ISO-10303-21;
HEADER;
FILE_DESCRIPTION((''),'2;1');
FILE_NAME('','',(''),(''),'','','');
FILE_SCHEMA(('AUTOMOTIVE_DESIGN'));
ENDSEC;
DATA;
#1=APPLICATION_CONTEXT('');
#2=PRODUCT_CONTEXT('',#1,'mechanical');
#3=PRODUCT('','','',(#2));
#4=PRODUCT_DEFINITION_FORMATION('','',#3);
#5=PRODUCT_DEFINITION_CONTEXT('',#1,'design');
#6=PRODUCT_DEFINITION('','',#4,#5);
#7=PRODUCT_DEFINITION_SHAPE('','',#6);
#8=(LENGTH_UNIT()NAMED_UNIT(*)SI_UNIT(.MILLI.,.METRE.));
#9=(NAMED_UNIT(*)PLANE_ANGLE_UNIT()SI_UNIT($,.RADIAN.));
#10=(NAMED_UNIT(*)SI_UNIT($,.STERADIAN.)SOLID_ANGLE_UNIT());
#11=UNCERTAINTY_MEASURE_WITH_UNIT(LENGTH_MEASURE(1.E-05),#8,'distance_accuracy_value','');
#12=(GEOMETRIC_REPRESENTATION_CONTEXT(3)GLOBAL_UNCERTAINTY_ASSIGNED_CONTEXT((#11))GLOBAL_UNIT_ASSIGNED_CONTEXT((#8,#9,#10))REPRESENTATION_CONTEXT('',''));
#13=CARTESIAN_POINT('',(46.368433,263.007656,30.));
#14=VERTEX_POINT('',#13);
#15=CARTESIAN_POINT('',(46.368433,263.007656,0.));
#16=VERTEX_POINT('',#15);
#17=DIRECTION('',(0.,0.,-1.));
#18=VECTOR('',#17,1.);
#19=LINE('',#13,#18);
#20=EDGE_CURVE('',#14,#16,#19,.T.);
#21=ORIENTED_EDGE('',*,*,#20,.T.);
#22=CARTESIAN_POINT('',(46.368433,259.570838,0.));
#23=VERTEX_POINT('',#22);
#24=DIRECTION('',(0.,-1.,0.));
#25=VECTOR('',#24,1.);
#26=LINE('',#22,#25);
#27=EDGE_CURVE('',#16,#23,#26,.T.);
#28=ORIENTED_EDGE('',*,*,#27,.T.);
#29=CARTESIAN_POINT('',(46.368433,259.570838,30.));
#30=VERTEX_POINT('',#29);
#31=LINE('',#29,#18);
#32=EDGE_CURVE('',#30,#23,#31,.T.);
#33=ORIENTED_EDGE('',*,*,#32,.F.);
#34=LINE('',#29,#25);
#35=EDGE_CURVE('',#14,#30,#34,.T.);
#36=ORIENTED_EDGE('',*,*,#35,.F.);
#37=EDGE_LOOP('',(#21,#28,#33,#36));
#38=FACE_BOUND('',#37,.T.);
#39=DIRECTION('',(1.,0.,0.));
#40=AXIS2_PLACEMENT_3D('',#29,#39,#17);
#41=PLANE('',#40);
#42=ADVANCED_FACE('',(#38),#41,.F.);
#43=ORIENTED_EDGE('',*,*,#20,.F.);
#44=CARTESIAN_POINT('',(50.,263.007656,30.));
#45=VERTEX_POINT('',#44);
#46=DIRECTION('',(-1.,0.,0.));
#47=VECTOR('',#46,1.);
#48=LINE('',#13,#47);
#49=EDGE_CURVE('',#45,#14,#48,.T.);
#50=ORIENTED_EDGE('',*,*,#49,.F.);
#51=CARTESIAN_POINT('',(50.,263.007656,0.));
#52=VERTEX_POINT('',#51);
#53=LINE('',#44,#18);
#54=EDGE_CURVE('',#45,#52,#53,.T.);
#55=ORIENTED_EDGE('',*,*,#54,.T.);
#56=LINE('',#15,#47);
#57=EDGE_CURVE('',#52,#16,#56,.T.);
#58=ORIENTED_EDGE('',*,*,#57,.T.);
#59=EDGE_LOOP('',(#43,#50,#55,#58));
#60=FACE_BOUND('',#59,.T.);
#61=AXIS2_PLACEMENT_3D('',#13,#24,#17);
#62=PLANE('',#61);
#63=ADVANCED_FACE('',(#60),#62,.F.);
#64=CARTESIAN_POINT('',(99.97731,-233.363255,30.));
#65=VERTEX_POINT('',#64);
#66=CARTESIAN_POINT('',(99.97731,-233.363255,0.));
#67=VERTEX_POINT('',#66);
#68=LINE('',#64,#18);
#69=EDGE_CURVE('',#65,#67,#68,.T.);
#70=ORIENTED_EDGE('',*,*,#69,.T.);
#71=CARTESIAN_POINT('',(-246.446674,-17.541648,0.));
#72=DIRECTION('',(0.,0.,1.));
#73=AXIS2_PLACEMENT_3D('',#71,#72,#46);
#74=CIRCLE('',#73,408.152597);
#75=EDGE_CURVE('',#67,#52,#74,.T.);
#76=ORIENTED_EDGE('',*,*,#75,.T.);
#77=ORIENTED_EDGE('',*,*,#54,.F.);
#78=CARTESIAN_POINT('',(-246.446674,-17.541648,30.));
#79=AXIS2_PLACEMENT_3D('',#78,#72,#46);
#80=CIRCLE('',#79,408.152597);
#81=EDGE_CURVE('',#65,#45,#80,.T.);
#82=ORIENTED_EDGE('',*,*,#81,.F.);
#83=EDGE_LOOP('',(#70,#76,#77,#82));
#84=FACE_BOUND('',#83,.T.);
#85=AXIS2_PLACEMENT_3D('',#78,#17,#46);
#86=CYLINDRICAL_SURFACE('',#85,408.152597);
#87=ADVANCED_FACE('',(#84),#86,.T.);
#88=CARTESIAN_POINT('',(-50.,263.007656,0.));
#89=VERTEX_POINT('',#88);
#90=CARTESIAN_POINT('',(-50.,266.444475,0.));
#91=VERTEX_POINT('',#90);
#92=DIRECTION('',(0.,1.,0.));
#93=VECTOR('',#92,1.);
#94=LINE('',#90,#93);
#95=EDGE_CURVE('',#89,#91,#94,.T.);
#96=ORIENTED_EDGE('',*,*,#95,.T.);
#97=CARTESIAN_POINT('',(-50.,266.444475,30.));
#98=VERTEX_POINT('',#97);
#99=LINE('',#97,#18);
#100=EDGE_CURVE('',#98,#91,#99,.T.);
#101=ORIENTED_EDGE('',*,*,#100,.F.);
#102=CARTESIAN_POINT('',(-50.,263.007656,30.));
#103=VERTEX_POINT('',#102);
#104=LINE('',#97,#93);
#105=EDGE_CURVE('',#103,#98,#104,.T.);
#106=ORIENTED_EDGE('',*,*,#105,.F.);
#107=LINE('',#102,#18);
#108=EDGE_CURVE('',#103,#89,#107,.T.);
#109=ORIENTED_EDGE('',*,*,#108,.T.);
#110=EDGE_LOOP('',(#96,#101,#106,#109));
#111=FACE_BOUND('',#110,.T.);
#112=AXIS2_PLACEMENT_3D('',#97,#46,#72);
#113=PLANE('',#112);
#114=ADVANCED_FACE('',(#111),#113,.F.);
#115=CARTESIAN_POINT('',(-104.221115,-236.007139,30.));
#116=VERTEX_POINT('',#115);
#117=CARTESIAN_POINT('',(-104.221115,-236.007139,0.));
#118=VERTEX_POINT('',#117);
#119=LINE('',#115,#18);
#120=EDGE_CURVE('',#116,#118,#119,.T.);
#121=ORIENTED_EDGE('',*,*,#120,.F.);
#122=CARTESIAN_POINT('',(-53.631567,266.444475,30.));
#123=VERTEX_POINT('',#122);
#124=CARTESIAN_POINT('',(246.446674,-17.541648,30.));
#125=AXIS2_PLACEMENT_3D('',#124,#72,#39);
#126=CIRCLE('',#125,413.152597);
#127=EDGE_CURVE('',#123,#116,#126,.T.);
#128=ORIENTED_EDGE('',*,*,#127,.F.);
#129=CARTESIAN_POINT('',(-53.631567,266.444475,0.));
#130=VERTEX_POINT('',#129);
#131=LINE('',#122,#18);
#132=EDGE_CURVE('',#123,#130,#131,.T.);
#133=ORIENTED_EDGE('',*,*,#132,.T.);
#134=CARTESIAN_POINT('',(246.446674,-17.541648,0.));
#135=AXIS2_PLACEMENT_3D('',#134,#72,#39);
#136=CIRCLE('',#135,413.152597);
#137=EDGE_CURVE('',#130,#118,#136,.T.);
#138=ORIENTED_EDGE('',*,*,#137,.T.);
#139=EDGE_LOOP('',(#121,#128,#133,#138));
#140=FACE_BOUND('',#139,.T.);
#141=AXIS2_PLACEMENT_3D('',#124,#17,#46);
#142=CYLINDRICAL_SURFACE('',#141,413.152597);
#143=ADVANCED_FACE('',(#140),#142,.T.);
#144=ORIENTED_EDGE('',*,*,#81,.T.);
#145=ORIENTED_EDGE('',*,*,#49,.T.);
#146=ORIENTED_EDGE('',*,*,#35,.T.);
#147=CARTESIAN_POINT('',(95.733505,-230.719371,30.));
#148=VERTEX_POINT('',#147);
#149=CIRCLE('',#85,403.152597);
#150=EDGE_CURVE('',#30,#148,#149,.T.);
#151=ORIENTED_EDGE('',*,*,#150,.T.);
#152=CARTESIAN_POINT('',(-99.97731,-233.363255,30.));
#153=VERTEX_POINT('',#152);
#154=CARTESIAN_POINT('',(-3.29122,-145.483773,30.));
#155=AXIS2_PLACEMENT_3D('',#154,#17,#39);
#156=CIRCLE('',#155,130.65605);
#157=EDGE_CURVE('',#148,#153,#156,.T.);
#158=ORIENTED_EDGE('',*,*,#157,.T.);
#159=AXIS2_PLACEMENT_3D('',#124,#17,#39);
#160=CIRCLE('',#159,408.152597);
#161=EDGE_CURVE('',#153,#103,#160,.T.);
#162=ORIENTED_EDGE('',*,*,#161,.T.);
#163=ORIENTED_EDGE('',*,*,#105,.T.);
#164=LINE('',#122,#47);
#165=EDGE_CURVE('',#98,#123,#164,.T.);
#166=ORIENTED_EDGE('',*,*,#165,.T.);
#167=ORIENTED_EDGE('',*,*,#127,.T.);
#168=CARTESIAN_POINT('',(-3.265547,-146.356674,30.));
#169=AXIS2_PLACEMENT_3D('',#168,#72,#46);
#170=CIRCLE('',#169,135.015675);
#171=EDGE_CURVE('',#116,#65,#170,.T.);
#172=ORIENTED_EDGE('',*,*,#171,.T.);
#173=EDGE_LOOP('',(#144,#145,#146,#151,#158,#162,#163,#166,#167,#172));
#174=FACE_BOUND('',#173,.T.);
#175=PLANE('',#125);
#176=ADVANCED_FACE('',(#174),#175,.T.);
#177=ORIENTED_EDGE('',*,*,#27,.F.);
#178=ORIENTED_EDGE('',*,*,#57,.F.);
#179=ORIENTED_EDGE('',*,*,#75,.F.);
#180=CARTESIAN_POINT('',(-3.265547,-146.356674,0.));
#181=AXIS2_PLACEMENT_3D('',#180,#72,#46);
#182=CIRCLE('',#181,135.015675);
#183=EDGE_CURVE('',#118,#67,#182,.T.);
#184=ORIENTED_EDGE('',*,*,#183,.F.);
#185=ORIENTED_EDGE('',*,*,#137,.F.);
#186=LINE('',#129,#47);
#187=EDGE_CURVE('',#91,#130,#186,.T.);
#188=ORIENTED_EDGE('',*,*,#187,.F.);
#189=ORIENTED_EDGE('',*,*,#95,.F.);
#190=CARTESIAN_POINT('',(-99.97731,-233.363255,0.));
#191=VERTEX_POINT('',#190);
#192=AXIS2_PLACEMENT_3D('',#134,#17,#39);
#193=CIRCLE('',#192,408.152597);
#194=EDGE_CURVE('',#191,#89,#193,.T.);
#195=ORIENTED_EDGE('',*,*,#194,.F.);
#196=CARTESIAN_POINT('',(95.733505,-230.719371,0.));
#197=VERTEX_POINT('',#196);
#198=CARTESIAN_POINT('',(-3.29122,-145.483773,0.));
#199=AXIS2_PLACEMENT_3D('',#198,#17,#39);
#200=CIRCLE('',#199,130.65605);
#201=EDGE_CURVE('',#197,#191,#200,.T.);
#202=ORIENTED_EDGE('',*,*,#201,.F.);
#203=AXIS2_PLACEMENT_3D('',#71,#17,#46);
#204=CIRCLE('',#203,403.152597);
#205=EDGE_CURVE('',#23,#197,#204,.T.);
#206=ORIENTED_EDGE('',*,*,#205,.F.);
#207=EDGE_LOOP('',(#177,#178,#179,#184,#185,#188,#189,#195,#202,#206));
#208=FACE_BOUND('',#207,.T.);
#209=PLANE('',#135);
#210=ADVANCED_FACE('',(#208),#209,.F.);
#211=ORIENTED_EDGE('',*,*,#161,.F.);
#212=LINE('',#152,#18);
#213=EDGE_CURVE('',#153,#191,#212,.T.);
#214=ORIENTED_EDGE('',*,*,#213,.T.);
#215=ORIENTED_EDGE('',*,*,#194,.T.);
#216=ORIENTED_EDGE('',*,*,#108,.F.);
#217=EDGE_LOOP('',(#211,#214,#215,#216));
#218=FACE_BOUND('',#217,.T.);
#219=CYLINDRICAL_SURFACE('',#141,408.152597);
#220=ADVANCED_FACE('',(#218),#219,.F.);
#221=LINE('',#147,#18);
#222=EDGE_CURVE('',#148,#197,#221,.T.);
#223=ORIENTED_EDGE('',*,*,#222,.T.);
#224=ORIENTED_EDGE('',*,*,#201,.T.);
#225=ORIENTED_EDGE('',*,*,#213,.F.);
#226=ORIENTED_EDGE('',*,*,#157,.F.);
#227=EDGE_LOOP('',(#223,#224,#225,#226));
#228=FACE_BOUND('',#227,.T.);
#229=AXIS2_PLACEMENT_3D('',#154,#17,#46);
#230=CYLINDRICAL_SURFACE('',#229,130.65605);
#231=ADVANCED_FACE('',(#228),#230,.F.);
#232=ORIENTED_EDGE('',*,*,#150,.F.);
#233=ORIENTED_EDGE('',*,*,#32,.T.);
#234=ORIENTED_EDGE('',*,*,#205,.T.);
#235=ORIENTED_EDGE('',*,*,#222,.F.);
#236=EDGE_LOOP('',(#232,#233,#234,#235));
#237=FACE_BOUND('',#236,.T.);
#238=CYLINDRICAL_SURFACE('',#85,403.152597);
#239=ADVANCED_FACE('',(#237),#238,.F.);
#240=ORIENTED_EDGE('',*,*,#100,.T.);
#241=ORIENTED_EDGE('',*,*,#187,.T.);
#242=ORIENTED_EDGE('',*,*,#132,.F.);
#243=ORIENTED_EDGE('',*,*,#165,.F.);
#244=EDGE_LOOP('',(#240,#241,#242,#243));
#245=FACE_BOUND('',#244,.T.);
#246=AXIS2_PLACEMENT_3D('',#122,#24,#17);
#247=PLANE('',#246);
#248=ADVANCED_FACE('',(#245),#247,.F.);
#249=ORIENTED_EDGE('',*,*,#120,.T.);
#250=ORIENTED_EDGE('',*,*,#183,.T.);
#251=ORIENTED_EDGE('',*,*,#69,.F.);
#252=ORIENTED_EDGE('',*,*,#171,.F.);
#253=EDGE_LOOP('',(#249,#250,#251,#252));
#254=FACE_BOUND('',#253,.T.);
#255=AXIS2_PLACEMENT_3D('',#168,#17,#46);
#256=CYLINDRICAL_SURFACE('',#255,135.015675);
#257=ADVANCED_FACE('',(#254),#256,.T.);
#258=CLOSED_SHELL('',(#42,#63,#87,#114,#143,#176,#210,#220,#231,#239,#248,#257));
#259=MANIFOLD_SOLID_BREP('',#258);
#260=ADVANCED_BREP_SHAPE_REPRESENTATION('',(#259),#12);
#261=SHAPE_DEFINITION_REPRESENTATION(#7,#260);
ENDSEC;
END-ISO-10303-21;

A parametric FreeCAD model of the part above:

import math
import FreeCAD as App
import Part
import Sketcher
Q = App.Units.Quantity

doc = App.newDocument("Part")
params = doc.addObject("Spreadsheet::Sheet", "Params")
for row, (alias, value) in enumerate([
    ("pad1_length", "30 mm"),
], start=1):
    params.set(f"A{row}", alias)
    params.set(f"B{row}", "=" + value)
    params.setAlias(f"B{row}", alias)

body = doc.addObject("PartDesign::Body", "Body")

sketch1 = body.newObject("Sketcher::SketchObject", "Sketch")
sketch1.AttachmentSupport = (doc.getObject("XY_Plane"), [""])
sketch1.MapMode = "FlatFace"
sketch1.addGeometry([
    Part.LineSegment(App.Vector(46.4, 263, 0), App.Vector(46.4, 259.6, 0)),
    Part.ArcOfCircle(Part.Circle(App.Vector(-246.4, -17.5, 0), App.Vector(0, 0, 1), 403.2), math.radians(-32), math.radians(43)),
    Part.ArcOfCircle(Part.Circle(App.Vector(-3.3, -145.5, 0), App.Vector(0, 0, 1), 130.7), math.radians(-138), math.radians(-41)),
    Part.ArcOfCircle(Part.Circle(App.Vector(246.4, -17.5, 0), App.Vector(0, 0, 1), 408.2), math.radians(137), math.radians(212)),
    Part.LineSegment(App.Vector(-50, 263, 0), App.Vector(-50, 266.4, 0)),
    Part.LineSegment(App.Vector(-50, 266.4, 0), App.Vector(-53.6, 266.4, 0)),
    Part.ArcOfCircle(Part.Circle(App.Vector(246.4, -17.5, 0), App.Vector(0, 0, 1), 413.2), math.radians(137), math.radians(212)),
    Part.ArcOfCircle(Part.Circle(App.Vector(-3.3, -146.4, 0), App.Vector(0, 0, 1), 135), math.radians(-138), math.radians(-40)),
    Part.ArcOfCircle(Part.Circle(App.Vector(-246.4, -17.5, 0), App.Vector(0, 0, 1), 408.2), math.radians(-32), math.radians(43)),
    Part.LineSegment(App.Vector(50, 263, 0), App.Vector(46.4, 263, 0)),
], False)
sketch1.addConstraint([
    Sketcher.Constraint("Coincident", 0, 2, 1, 2),
    Sketcher.Constraint("Coincident", 1, 1, 2, 2),
    Sketcher.Constraint("Coincident", 2, 1, 3, 2),
    Sketcher.Constraint("Coincident", 3, 1, 4, 1),
    Sketcher.Constraint("Coincident", 4, 2, 5, 1),
    Sketcher.Constraint("Coincident", 5, 2, 6, 1),
    Sketcher.Constraint("Coincident", 6, 2, 7, 1),
    Sketcher.Constraint("Coincident", 7, 2, 8, 1),
    Sketcher.Constraint("Coincident", 8, 2, 9, 1),
    Sketcher.Constraint("Coincident", 9, 2, 0, 1),
    Sketcher.Constraint("Vertical", 0),
    Sketcher.Constraint("Vertical", 4),
    Sketcher.Constraint("Horizontal", 5),
    Sketcher.Constraint("Horizontal", 9),
    Sketcher.Constraint("Coincident", 6, 3, 3, 3),
    Sketcher.Constraint("Coincident", 8, 3, 1, 3),
    Sketcher.Constraint("Equal", 3, 8),
    Sketcher.Constraint("Symmetric", 1, 3, 3, 3, -2),
    Sketcher.Constraint("Horizontal", 2, 1, 7, 2),
    Sketcher.Constraint("Equal", 5, 9),
    Sketcher.Constraint("Equal", 0, 4),
    Sketcher.Constraint("DistanceX", 4, 2, -1, 1, Q("50 mm")),
    Sketcher.Constraint("DistanceX", -1, 1, 8, 2, Q("50 mm")),
    Sketcher.Constraint("Radius", 2, Q("130.65605 mm")),
    Sketcher.Constraint("Radius", 1, Q("403.152597 mm")),
    Sketcher.Constraint("Radius", 3, Q("408.152597 mm")),
    Sketcher.Constraint("Radius", 7, Q("135.015675 mm")),
    Sketcher.Constraint("DistanceY", 0, 2, 0, 1, Q("3.436819 mm")),
    Sketcher.Constraint("DistanceY", 7, 3, 2, 3, Q("0.872901 mm")),
    Sketcher.Constraint("DistanceY", 1, 3, -1, 1, Q("17.541648 mm")),
    Sketcher.Constraint("DistanceX", 2, 3, -1, 1, Q("3.29122 mm")),
    Sketcher.Constraint("DistanceY", 1, 1, -1, 1, Q("230.719371 mm")),
    Sketcher.Constraint("DistanceX", 2, 1, -1, 1, Q("99.97731 mm")),
])
pad1 = body.newObject("PartDesign::Pad", "Pad")
pad1.Profile = sketch1
pad1.setExpression("Length", "Params.pad1_length")

doc.recompute()
